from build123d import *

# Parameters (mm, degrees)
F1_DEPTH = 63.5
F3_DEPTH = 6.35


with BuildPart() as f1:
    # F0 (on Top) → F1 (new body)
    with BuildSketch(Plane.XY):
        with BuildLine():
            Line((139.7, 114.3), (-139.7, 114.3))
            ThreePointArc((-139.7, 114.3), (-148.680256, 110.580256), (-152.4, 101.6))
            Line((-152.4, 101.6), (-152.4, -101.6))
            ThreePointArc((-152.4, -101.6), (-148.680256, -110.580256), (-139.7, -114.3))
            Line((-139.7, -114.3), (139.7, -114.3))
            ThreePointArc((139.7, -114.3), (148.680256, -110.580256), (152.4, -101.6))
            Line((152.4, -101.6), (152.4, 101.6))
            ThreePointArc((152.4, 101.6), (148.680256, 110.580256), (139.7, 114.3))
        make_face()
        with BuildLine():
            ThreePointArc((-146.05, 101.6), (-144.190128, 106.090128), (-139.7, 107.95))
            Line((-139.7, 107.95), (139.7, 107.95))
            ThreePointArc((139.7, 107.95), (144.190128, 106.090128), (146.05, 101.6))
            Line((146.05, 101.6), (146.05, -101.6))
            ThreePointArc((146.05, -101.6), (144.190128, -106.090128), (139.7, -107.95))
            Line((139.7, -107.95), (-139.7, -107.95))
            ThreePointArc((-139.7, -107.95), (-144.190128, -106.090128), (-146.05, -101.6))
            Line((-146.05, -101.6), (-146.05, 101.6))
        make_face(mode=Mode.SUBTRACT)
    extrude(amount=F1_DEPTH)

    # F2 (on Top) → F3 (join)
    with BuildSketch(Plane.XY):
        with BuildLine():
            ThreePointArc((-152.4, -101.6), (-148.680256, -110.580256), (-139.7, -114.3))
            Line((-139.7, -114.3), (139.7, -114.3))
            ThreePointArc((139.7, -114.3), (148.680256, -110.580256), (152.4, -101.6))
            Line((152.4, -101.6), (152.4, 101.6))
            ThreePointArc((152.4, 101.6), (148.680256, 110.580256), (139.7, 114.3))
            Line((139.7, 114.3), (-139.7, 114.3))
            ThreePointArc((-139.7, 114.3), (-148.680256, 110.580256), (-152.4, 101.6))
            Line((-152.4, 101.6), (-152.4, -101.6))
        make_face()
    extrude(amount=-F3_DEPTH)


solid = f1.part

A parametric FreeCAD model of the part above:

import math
import FreeCAD as App
import Part
import Sketcher
from FreeCAD import Vector
Q = App.Units.Quantity

doc = App.newDocument("Part")
params = doc.addObject("Spreadsheet::Sheet", "Params")
for row, (alias, value) in enumerate([
    ("sketch1_radius", "0.5 in"),
    ("sketch1_width", "11 in"),
    ("sketch1_height", "8 in"),
    ("sketch1_radius2", "0.25 in"),
    ("pad1_length", "2.5 in"),
    ("sketch2_radius", "0.5 in"),
    ("sketch2_width", "11 in"),
    ("sketch2_height", "8 in"),
    ("pad2_length", "0.25 in"),
], start=1):
    params.set(f"A{row}", alias)
    params.set(f"B{row}", "=" + value)
    params.setAlias(f"B{row}", alias)

body = doc.addObject("PartDesign::Body", "Body")

sketch1 = body.newObject("Sketcher::SketchObject", "Sketch")
sketch1.AttachmentSupport = (doc.getObject("XY_Plane"), [""])
sketch1.MapMode = "FlatFace"
sketch1.addGeometry(Part.LineSegment(Vector(139.7, 114.3, 0), Vector(-139.7, 114.3, 0)), False)
sketch1.addGeometry(Part.ArcOfCircle(Part.Circle(Vector(-139.7, 101.6, 0), Vector(0, 0, 1), 12.7), math.radians(90.000002), math.radians(179.999998)), False)
sketch1.addGeometry(Part.LineSegment(Vector(-152.4, 101.6, 0), Vector(-152.4, -101.6, 0)), False)
sketch1.addGeometry(Part.ArcOfCircle(Part.Circle(Vector(-139.7, -101.6, 0), Vector(0, 0, 1), 12.7), math.radians(-179.999998), math.radians(-90.000002)), False)
sketch1.addGeometry(Part.LineSegment(Vector(-139.7, -114.3, 0), Vector(139.7, -114.3, 0)), False)
sketch1.addGeometry(Part.ArcOfCircle(Part.Circle(Vector(139.7, -101.6, 0), Vector(0, 0, 1), 12.7), math.radians(-89.999998), math.radians(-0.000002)), False)
sketch1.addGeometry(Part.LineSegment(Vector(152.4, -101.6, 0), Vector(152.4, 101.6, 0)), False)
sketch1.addGeometry(Part.ArcOfCircle(Part.Circle(Vector(139.7, 101.6, 0), Vector(0, 0, 1), 12.7), math.radians(0.000002), math.radians(89.999998)), False)
sketch1.addGeometry(Part.LineSegment(Vector(-146.05, -101.6, 0), Vector(-146.05, 101.6, 0)), False)
sketch1.addGeometry(Part.ArcOfCircle(Part.Circle(Vector(-139.7, 101.6, 0), Vector(0, 0, 1), 6.35), math.radians(90.000002), math.radians(179.999998)), False)
sketch1.addGeometry(Part.LineSegment(Vector(-139.7, 107.95, 0), Vector(139.7, 107.95, 0)), False)
sketch1.addGeometry(Part.ArcOfCircle(Part.Circle(Vector(139.7, 101.6, 0), Vector(0, 0, 1), 6.35), math.radians(0.000002), math.radians(89.999998)), False)
sketch1.addGeometry(Part.LineSegment(Vector(146.05, 101.6, 0), Vector(146.05, -101.6, 0)), False)
sketch1.addGeometry(Part.ArcOfCircle(Part.Circle(Vector(139.7, -101.6, 0), Vector(0, 0, 1), 6.35), math.radians(-89.999998), math.radians(-0.000002)), False)
sketch1.addGeometry(Part.LineSegment(Vector(139.7, -107.95, 0), Vector(-139.7, -107.95, 0)), False)
sketch1.addGeometry(Part.ArcOfCircle(Part.Circle(Vector(-139.7, -101.6, 0), Vector(0, 0, 1), 6.35), math.radians(-179.999998), math.radians(-90.000002)), False)
sketch1.addConstraint(Sketcher.Constraint("Tangent", 0, 2, 1, 1))
sketch1.addConstraint(Sketcher.Constraint("Tangent", 1, 2, 2, 1))
sketch1.addConstraint(Sketcher.Constraint("Tangent", 2, 2, 3, 1))
sketch1.addConstraint(Sketcher.Constraint("Tangent", 3, 2, 4, 1))
sketch1.addConstraint(Sketcher.Constraint("Tangent", 4, 2, 5, 1))
sketch1.addConstraint(Sketcher.Constraint("Tangent", 5, 2, 6, 1))
sketch1.addConstraint(Sketcher.Constraint("Tangent", 6, 2, 7, 1))
sketch1.addConstraint(Sketcher.Constraint("Tangent", 7, 2, 0, 1))
sketch1.addConstraint(Sketcher.Constraint("Tangent", 8, 2, 9, 2))
sketch1.addConstraint(Sketcher.Constraint("Tangent", 9, 1, 10, 1))
sketch1.addConstraint(Sketcher.Constraint("Tangent", 10, 2, 11, 2))
sketch1.addConstraint(Sketcher.Constraint("Tangent", 11, 1, 12, 1))
sketch1.addConstraint(Sketcher.Constraint("Tangent", 12, 2, 13, 2))
sketch1.addConstraint(Sketcher.Constraint("Tangent", 13, 1, 14, 1))
sketch1.addConstraint(Sketcher.Constraint("Tangent", 14, 2, 15, 2))
sketch1.addConstraint(Sketcher.Constraint("Tangent", 15, 1, 8, 1))
sketch1.addConstraint(Sketcher.Constraint("Horizontal", 0))
sketch1.addConstraint(Sketcher.Constraint("Vertical", 2))
sketch1.addConstraint(Sketcher.Constraint("Horizontal", 4))
sketch1.addConstraint(Sketcher.Constraint("Vertical", 6))
sketch1.addConstraint(Sketcher.Constraint("Vertical", 8))
sketch1.addConstraint(Sketcher.Constraint("Horizontal", 10))
sketch1.addConstraint(Sketcher.Constraint("Vertical", 12))
sketch1.addConstraint(Sketcher.Constraint("Horizontal", 14))
sketch1.addConstraint(Sketcher.Constraint("Coincident", 9, 3, 1, 3))
sketch1.addConstraint(Sketcher.Constraint("Coincident", 11, 3, 7, 3))
sketch1.addConstraint(Sketcher.Constraint("Coincident", 13, 3, 5, 3))
sketch1.addConstraint(Sketcher.Constraint("Equal", 1, 3))
sketch1.addConstraint(Sketcher.Constraint("Equal", 3, 5))
sketch1.addConstraint(Sketcher.Constraint("Equal", 5, 7))
sketch1.addConstraint(Sketcher.Constraint("Equal", 13, 15))
sketch1.addConstraint(Sketcher.Constraint("Symmetric", 1, 3, 5, 3, -1, 1))
sketch1.addConstraint(Sketcher.Constraint("Radius", 1, Q("0.5 in")))
sketch1.addConstraint(Sketcher.Constraint("DistanceX", 0, 2, 0, 1, Q("11 in")))
sketch1.addConstraint(Sketcher.Constraint("DistanceY", 2, 2, 2, 1, Q("8 in")))
sketch1.addConstraint(Sketcher.Constraint("Radius", 9, Q("0.25 in")))
sketch1.setExpression("Constraints[32]", "Params.sketch1_radius")
sketch1.setExpression("Constraints[33]", "Params.sketch1_width")
sketch1.setExpression("Constraints[34]", "Params.sketch1_height")
sketch1.setExpression("Constraints[35]", "Params.sketch1_radius2")
pad1 = body.newObject("PartDesign::Pad", "Pad")
pad1.Profile = sketch1
pad1.setExpression("Length", "Params.pad1_length")

sketch2 = body.newObject("Sketcher::SketchObject", "Sketch001")
sketch2.AttachmentSupport = (doc.getObject("XY_Plane"), [""])
sketch2.MapMode = "FlatFace"
sketch2.addGeometry(Part.ArcOfCircle(Part.Circle(Vector(-139.7, -101.6, 0), Vector(0, 0, 1), 12.7), math.radians(-179.999998), math.radians(-90.000002)), False)
sketch2.addGeometry(Part.LineSegment(Vector(-139.7, -114.3, 0), Vector(139.7, -114.3, 0)), False)
sketch2.addGeometry(Part.ArcOfCircle(Part.Circle(Vector(139.7, -101.6, 0), Vector(0, 0, 1), 12.7), math.radians(-89.999998), math.radians(-0.000002)), False)
sketch2.addGeometry(Part.LineSegment(Vector(152.4, -101.6, 0), Vector(152.4, 101.6, 0)), False)
sketch2.addGeometry(Part.ArcOfCircle(Part.Circle(Vector(139.7, 101.6, 0), Vector(0, 0, 1), 12.7), math.radians(0.000002), math.radians(89.999998)), False)
sketch2.addGeometry(Part.LineSegment(Vector(139.7, 114.3, 0), Vector(-139.7, 114.3, 0)), False)
sketch2.addGeometry(Part.ArcOfCircle(Part.Circle(Vector(-139.7, 101.6, 0), Vector(0, 0, 1), 12.7), math.radians(90.000002), math.radians(179.999998)), False)
sketch2.addGeometry(Part.LineSegment(Vector(-152.4, 101.6, 0), Vector(-152.4, -101.6, 0)), False)
sketch2.addConstraint(Sketcher.Constraint("Tangent", 0, 2, 1, 1))
sketch2.addConstraint(Sketcher.Constraint("Tangent", 1, 2, 2, 1))
sketch2.addConstraint(Sketcher.Constraint("Tangent", 2, 2, 3, 1))
sketch2.addConstraint(Sketcher.Constraint("Tangent", 3, 2, 4, 1))
sketch2.addConstraint(Sketcher.Constraint("Tangent", 4, 2, 5, 1))
sketch2.addConstraint(Sketcher.Constraint("Tangent", 5, 2, 6, 1))
sketch2.addConstraint(Sketcher.Constraint("Tangent", 6, 2, 7, 1))
sketch2.addConstraint(Sketcher.Constraint("Tangent", 7, 2, 0, 1))
sketch2.addConstraint(Sketcher.Constraint("Horizontal", 1))
sketch2.addConstraint(Sketcher.Constraint("Vertical", 3))
sketch2.addConstraint(Sketcher.Constraint("Horizontal", 5))
sketch2.addConstraint(Sketcher.Constraint("Vertical", 7))
sketch2.addConstraint(Sketcher.Constraint("Equal", 0, 2))
sketch2.addConstraint(Sketcher.Constraint("Equal", 2, 4))
sketch2.addConstraint(Sketcher.Constraint("Equal", 4, 6))
sketch2.addConstraint(Sketcher.Constraint("Symmetric", 0, 3, 4, 3, -1, 1))
sketch2.addConstraint(Sketcher.Constraint("Radius", 0, Q("0.5 in")))
sketch2.addConstraint(Sketcher.Constraint("DistanceX", 1, 1, 1, 2, Q("11 in")))
sketch2.addConstraint(Sketcher.Constraint("DistanceY", 3, 1, 3, 2, Q("8 in")))
sketch2.setExpression("Constraints[16]", "Params.sketch2_radius")
sketch2.setExpression("Constraints[17]", "Params.sketch2_width")
sketch2.setExpression("Constraints[18]", "Params.sketch2_height")
pad2 = body.newObject("PartDesign::Pad", "Pad001")
pad2.Profile = sketch2
pad2.setExpression("Length", "Params.pad2_length")
pad2.Reversed = True

doc.recompute()
